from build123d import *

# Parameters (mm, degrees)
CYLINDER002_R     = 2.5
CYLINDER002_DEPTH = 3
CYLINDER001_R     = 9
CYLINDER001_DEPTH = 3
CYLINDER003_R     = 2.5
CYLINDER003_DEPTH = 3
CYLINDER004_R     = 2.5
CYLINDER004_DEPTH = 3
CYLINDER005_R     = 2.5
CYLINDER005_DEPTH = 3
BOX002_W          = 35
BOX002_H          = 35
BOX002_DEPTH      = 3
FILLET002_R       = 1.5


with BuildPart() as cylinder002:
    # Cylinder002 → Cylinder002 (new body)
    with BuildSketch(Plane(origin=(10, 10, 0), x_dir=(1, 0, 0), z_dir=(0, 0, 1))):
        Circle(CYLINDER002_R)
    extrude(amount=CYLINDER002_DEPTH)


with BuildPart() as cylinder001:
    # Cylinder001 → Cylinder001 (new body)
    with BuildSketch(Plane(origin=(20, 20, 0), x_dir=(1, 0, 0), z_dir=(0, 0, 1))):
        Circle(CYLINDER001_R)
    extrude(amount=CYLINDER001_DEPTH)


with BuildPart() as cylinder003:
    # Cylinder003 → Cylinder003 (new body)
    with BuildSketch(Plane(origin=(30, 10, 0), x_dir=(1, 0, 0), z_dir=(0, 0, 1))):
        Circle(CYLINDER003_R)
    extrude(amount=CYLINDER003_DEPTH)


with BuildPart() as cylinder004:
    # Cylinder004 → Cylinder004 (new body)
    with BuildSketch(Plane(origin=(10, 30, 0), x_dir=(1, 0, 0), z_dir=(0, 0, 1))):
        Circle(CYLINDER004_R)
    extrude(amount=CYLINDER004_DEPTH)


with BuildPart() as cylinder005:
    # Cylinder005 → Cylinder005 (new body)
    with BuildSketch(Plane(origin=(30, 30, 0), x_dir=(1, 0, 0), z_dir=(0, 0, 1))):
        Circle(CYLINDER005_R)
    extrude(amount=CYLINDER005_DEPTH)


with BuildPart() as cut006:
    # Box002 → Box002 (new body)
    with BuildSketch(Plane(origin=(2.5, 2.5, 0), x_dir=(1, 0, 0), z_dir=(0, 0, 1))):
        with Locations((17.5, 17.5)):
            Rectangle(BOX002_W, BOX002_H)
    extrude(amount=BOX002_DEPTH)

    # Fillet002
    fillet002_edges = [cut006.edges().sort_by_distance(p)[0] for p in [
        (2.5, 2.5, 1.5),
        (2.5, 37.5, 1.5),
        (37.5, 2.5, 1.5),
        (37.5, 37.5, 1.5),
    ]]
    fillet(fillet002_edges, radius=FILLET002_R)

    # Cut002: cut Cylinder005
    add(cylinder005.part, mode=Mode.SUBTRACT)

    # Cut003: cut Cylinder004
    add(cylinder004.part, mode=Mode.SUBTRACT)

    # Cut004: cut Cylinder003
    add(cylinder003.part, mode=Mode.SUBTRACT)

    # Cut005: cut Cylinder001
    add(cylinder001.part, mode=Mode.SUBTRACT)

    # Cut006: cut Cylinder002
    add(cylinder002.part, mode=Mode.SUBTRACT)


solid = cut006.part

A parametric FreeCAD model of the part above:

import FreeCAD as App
import Part
import Sketcher
from FreeCAD import Vector
Q = App.Units.Quantity


def edges_at(feature, points):
    """Names of the edges that pass closest to the given points."""
    edges = feature.Shape.Edges
    near = lambda p: min(range(len(edges)), key=lambda i: edges[i].distToShape(Part.Vertex(*p))[0])
    return sorted({f"Edge{near(p) + 1}" for p in points})


def add_polygon(sketch, points):
    """Adds a closed chain of lines whose ends are joined by coincident constraints."""
    first, n = sketch.GeometryCount, len(points)
    for a, b in zip(points, points[1:] + points[:1]):
        sketch.addGeometry(Part.LineSegment(App.Vector(*a, 0), App.Vector(*b, 0)), False)
    for i in range(n):
        sketch.addConstraint(Sketcher.Constraint("Coincident", first + i, 2, first + (i + 1) % n, 1))

doc = App.newDocument("Part")
body = doc.addObject("PartDesign::Body", "Body")

# Sketch on XY plane
sketch1 = body.newObject("Sketcher::SketchObject", "Sketch")
sketch1.AttachmentSupport = (doc.getObject("XY_Plane"), [""])
sketch1.MapMode = "FlatFace"
sketch1.addGeometry(Part.Circle(Vector(10, 10, 0), Vector(0, 0, 1), 2.5), False)
sketch1.addConstraint(Sketcher.Constraint("Diameter", 0, Q("5 mm")))
sketch1.addConstraint(Sketcher.Constraint("DistanceX", -1, 1, 0, 3, Q("10 mm")))
sketch1.addConstraint(Sketcher.Constraint("DistanceY", -1, 1, 0, 3, Q("10 mm")))
pad1 = body.newObject("PartDesign::Pad", "Pad")
pad1.Profile = sketch1
pad1.Length = 3
body2 = doc.addObject("PartDesign::Body", "Body001")

# Sketch on XY plane
sketch2 = body2.newObject("Sketcher::SketchObject", "Sketch001")
sketch2.AttachmentSupport = (doc.getObject("XY_Plane001"), [""])
sketch2.MapMode = "FlatFace"
sketch2.addGeometry(Part.Circle(Vector(20, 20, 0), Vector(0, 0, 1), 9), False)
sketch2.addConstraint(Sketcher.Constraint("Diameter", 0, Q("18 mm")))
sketch2.addConstraint(Sketcher.Constraint("DistanceX", -1, 1, 0, 3, Q("20 mm")))
sketch2.addConstraint(Sketcher.Constraint("DistanceY", -1, 1, 0, 3, Q("20 mm")))
pad2 = body2.newObject("PartDesign::Pad", "Pad001")
pad2.Profile = sketch2
pad2.Length = 3
body3 = doc.addObject("PartDesign::Body", "Body002")

# Sketch on XY plane
sketch3 = body3.newObject("Sketcher::SketchObject", "Sketch002")
sketch3.AttachmentSupport = (doc.getObject("XY_Plane002"), [""])
sketch3.MapMode = "FlatFace"
sketch3.addGeometry(Part.Circle(Vector(30, 10, 0), Vector(0, 0, 1), 2.5), False)
sketch3.addConstraint(Sketcher.Constraint("Diameter", 0, Q("5 mm")))
sketch3.addConstraint(Sketcher.Constraint("DistanceX", -1, 1, 0, 3, Q("30 mm")))
sketch3.addConstraint(Sketcher.Constraint("DistanceY", -1, 1, 0, 3, Q("10 mm")))
pad3 = body3.newObject("PartDesign::Pad", "Pad002")
pad3.Profile = sketch3
pad3.Length = 3
body4 = doc.addObject("PartDesign::Body", "Body003")

# Sketch on XY plane
sketch4 = body4.newObject("Sketcher::SketchObject", "Sketch003")
sketch4.AttachmentSupport = (doc.getObject("XY_Plane003"), [""])
sketch4.MapMode = "FlatFace"
sketch4.addGeometry(Part.Circle(Vector(10, 30, 0), Vector(0, 0, 1), 2.5), False)
sketch4.addConstraint(Sketcher.Constraint("Diameter", 0, Q("5 mm")))
sketch4.addConstraint(Sketcher.Constraint("DistanceX", -1, 1, 0, 3, Q("10 mm")))
sketch4.addConstraint(Sketcher.Constraint("DistanceY", -1, 1, 0, 3, Q("30 mm")))
pad4 = body4.newObject("PartDesign::Pad", "Pad003")
pad4.Profile = sketch4
pad4.Length = 3
body5 = doc.addObject("PartDesign::Body", "Body004")

# Sketch on XY plane
sketch5 = body5.newObject("Sketcher::SketchObject", "Sketch004")
sketch5.AttachmentSupport = (doc.getObject("XY_Plane004"), [""])
sketch5.MapMode = "FlatFace"
sketch5.addGeometry(Part.Circle(Vector(30, 30, 0), Vector(0, 0, 1), 2.5), False)
sketch5.addConstraint(Sketcher.Constraint("Diameter", 0, Q("5 mm")))
sketch5.addConstraint(Sketcher.Constraint("DistanceX", -1, 1, 0, 3, Q("30 mm")))
sketch5.addConstraint(Sketcher.Constraint("DistanceY", -1, 1, 0, 3, Q("30 mm")))
pad5 = body5.newObject("PartDesign::Pad", "Pad004")
pad5.Profile = sketch5
pad5.Length = 3
body6 = doc.addObject("PartDesign::Body", "Body005")

# Sketch on XY plane
sketch6 = body6.newObject("Sketcher::SketchObject", "Sketch005")
sketch6.AttachmentSupport = (doc.getObject("XY_Plane005"), [""])
sketch6.MapMode = "FlatFace"
add_polygon(sketch6, [(2, 38), (2, 2), (38, 2), (38, 38)])  # lines 0-3
sketch6.addConstraint(Sketcher.Constraint("Vertical", 0))
sketch6.addConstraint(Sketcher.Constraint("Horizontal", 1))
sketch6.addConstraint(Sketcher.Constraint("Vertical", 2))
sketch6.addConstraint(Sketcher.Constraint("Horizontal", 3))
sketch6.addConstraint(Sketcher.Constraint("Equal", 3, 0))
sketch6.addConstraint(Sketcher.Constraint("DistanceX", 1, 1, 1, 2, Q("35 mm")))
sketch6.addConstraint(Sketcher.Constraint("DistanceX", -1, 1, 0, 2, Q("2.5 mm")))
sketch6.addConstraint(Sketcher.Constraint("DistanceY", -1, 1, 0, 2, Q("2.5 mm")))
pad6 = body6.newObject("PartDesign::Pad", "Pad005")
pad6.Profile = sketch6
pad6.Length = 3
doc.recompute()

fillet = body6.newObject("PartDesign::Fillet", "Fillet")
fillet.Base = (pad6, edges_at(pad6, [
    (2.5, 2.5, 1.5),
    (2.5, 37.5, 1.5),
    (37.5, 2.5, 1.5),
    (37.5, 37.5, 1.5),
]))
fillet.Radius = 1.5
doc.recompute()

boolean = body6.newObject("PartDesign::Boolean", "Boolean")
boolean.Type = "Cut"
boolean.addObjects([body5])
doc.recompute()

boolean2 = body6.newObject("PartDesign::Boolean", "Boolean001")
boolean2.Type = "Cut"
boolean2.addObjects([body4])
doc.recompute()

boolean3 = body6.newObject("PartDesign::Boolean", "Boolean002")
boolean3.Type = "Cut"
boolean3.addObjects([body3])
doc.recompute()

boolean4 = body6.newObject("PartDesign::Boolean", "Boolean003")
boolean4.Type = "Cut"
boolean4.addObjects([body2])
doc.recompute()

boolean5 = body6.newObject("PartDesign::Boolean", "Boolean004")
boolean5.Type = "Cut"
boolean5.addObjects([body])

doc.recompute()
